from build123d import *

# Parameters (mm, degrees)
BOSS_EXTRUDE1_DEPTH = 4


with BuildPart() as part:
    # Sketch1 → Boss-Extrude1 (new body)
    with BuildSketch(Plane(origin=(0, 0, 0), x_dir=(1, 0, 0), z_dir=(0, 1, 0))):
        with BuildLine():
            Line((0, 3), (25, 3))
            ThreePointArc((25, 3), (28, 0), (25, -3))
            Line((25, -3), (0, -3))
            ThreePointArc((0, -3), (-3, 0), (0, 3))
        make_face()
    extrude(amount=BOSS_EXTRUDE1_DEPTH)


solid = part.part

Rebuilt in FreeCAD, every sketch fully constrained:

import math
import FreeCAD as App
import Part
import Sketcher

doc = App.newDocument("Part")
body = doc.addObject("PartDesign::Body", "Body")

# Sketch on XZ plane
sketch1 = doc.addObject("Sketcher::SketchObject", "Sketch")
body.addObject(sketch1)
sketch1.AttachmentSupport = (doc.XZ_Plane, [""])
sketch1.MapMode = "FlatFace"
sketch1.addGeometry(Part.LineSegment(App.Vector(25, -3, 0), App.Vector(0, -3, 0)), False)
sketch1.addGeometry(Part.ArcOfCircle(Part.Circle(App.Vector(0, 0, 0), App.Vector(0, 0, 1), 3), math.radians(90), math.radians(270)), False)
sketch1.addGeometry(Part.LineSegment(App.Vector(0, 3, 0), App.Vector(25, 3, 0)), False)
sketch1.addGeometry(Part.ArcOfCircle(Part.Circle(App.Vector(25, 0, 0), App.Vector(0, 0, 1), 3), math.radians(-90), math.radians(90)), False)
sketch1.addConstraint(Sketcher.Constraint("Tangent", 0, 2, 1, 2))
sketch1.addConstraint(Sketcher.Constraint("Tangent", 1, 1, 2, 1))
sketch1.addConstraint(Sketcher.Constraint("Tangent", 2, 2, 3, 2))
sketch1.addConstraint(Sketcher.Constraint("Tangent", 3, 1, 0, 1))
sketch1.addConstraint(Sketcher.Constraint("Horizontal", 0))
sketch1.addConstraint(Sketcher.Constraint("Horizontal", 2))
sketch1.addConstraint(Sketcher.Constraint("Coincident", 1, 3, -1, 1))
sketch1.addConstraint(Sketcher.Constraint("Radius", 1, 3.0))
sketch1.addConstraint(Sketcher.Constraint("DistanceX", 0, 2, 0, 1, 25.0))
pad1 = doc.addObject("PartDesign::Pad", "Pad")
body.addObject(pad1)
pad1.Profile = sketch1
pad1.Length = 4
pad1.Reversed = True

doc.recompute()
